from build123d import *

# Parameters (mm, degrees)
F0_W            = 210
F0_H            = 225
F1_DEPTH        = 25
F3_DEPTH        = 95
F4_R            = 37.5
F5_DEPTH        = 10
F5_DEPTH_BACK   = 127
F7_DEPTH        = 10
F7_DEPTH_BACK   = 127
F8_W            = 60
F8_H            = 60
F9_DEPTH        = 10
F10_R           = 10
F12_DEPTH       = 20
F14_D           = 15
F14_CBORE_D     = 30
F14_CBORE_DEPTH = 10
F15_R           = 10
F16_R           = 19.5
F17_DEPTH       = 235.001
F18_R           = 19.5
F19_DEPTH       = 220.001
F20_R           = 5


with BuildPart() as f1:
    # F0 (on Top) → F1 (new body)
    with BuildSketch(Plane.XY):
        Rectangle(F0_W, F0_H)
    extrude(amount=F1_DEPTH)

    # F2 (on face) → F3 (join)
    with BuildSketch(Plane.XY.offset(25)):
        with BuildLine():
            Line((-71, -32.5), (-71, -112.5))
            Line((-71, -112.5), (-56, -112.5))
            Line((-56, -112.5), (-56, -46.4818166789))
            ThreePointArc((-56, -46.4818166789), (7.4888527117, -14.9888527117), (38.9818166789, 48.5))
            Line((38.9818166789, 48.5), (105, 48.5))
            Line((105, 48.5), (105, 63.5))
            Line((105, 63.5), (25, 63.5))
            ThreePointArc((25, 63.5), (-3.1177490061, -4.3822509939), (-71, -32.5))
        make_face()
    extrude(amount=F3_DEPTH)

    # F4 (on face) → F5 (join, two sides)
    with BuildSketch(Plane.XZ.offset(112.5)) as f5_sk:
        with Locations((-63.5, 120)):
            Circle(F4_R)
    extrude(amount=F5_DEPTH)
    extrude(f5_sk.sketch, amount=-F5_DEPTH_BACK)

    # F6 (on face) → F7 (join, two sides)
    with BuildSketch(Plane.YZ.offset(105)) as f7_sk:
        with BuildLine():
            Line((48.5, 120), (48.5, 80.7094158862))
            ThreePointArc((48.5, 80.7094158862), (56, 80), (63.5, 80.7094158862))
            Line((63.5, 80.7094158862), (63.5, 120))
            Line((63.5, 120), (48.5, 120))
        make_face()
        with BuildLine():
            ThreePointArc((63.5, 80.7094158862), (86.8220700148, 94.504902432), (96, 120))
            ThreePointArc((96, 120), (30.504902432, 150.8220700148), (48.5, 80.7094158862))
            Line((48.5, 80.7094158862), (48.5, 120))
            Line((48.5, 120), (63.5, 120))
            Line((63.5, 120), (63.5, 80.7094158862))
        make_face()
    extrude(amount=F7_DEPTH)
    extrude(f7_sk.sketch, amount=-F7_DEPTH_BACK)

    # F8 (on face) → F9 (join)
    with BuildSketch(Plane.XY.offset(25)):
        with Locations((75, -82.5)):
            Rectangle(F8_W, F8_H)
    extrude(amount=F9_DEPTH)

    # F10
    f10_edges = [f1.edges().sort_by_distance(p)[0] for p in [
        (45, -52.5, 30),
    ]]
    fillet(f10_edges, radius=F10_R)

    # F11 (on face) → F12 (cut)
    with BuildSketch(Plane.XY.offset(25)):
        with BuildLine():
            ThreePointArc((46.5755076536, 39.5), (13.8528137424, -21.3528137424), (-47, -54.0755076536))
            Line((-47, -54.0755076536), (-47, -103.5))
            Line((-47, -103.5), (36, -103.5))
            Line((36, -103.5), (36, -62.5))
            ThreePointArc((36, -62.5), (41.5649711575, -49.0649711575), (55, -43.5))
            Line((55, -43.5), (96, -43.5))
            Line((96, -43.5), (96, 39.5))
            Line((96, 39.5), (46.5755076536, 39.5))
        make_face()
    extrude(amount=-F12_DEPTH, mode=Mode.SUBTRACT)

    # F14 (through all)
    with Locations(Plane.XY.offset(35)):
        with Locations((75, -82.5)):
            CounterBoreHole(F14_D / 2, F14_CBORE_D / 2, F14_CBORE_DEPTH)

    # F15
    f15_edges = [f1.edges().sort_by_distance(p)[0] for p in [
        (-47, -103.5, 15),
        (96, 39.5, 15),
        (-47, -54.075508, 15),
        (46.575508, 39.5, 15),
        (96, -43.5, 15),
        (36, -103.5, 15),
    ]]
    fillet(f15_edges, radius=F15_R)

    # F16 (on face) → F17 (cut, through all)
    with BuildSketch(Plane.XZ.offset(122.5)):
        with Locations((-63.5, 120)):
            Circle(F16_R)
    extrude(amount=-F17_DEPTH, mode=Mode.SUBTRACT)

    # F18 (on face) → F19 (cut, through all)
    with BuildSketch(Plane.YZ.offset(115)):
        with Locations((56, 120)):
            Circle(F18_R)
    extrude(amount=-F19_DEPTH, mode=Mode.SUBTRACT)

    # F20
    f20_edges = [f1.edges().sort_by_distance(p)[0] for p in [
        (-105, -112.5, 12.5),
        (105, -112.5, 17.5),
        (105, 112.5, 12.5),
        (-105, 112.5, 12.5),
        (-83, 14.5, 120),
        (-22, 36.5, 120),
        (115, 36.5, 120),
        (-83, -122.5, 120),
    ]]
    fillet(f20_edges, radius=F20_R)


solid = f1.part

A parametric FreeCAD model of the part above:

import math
import FreeCAD as App
import Part
import Sketcher
Q = App.Units.Quantity


def edges_at(feature, points):
    """Names of the edges that pass closest to the given points."""
    edges = feature.Shape.Edges
    near = lambda p: min(range(len(edges)), key=lambda i: edges[i].distToShape(Part.Vertex(*p))[0])
    return sorted({f"Edge{near(p) + 1}" for p in points})

doc = App.newDocument("Part")
body = doc.addObject("PartDesign::Body", "Body")

sketch1 = body.newObject("Sketcher::SketchObject", "Sketch")
sketch1.AttachmentSupport = (doc.getObject("XY_Plane"), [""])
sketch1.MapMode = "FlatFace"
sketch1.addGeometry(Part.LineSegment(App.Vector(-105, 112, 0), App.Vector(-105, -112, 0)), False)
sketch1.addGeometry(Part.LineSegment(App.Vector(-105, -112, 0), App.Vector(105, -112, 0)), False)
sketch1.addGeometry(Part.LineSegment(App.Vector(105, -112, 0), App.Vector(105, 112, 0)), False)
sketch1.addGeometry(Part.LineSegment(App.Vector(105, 112, 0), App.Vector(-105, 112, 0)), False)
sketch1.addConstraint(Sketcher.Constraint("Coincident", 0, 2, 1, 1))
sketch1.addConstraint(Sketcher.Constraint("Coincident", 1, 2, 2, 1))
sketch1.addConstraint(Sketcher.Constraint("Coincident", 2, 2, 3, 1))
sketch1.addConstraint(Sketcher.Constraint("Coincident", 3, 2, 0, 1))
sketch1.addConstraint(Sketcher.Constraint("Vertical", 0))
sketch1.addConstraint(Sketcher.Constraint("Horizontal", 1))
sketch1.addConstraint(Sketcher.Constraint("Vertical", 2))
sketch1.addConstraint(Sketcher.Constraint("Horizontal", 3))
sketch1.addConstraint(Sketcher.Constraint("Symmetric", 0, 2, 2, 2, -1, 1))
sketch1.addConstraint(Sketcher.Constraint("DistanceX", 1, 1, 1, 2, Q("210 mm")))
sketch1.addConstraint(Sketcher.Constraint("DistanceY", 0, 2, 0, 1, Q("225 mm")))
pad1 = body.newObject("PartDesign::Pad", "Pad")
pad1.Profile = sketch1
pad1.Length = 25

sketch2 = body.newObject("Sketcher::SketchObject", "Sketch001")
sketch2.AttachmentSupport = (doc.getObject("XY_Plane"), [""])
sketch2.MapMode = "FlatFace"
sketch2.AttachmentOffset = App.Placement(App.Vector(0, 0, 25), App.Rotation())
sketch2.addGeometry(Part.LineSegment(App.Vector(-71, -32, 0), App.Vector(-71, -112, 0)), False)
sketch2.addGeometry(Part.LineSegment(App.Vector(-71, -112, 0), App.Vector(-56, -112, 0)), False)
sketch2.addGeometry(Part.LineSegment(App.Vector(-56, -112, 0), App.Vector(-56, -46, 0)), False)
sketch2.addGeometry(Part.ArcOfCircle(Part.Circle(App.Vector(-71, 64, 0), App.Vector(0, 0, 1), 111), math.radians(-82), math.radians(-8)), False)
sketch2.addGeometry(Part.LineSegment(App.Vector(39, 48, 0), App.Vector(105, 48, 0)), False)
sketch2.addGeometry(Part.LineSegment(App.Vector(105, 48, 0), App.Vector(105, 64, 0)), False)
sketch2.addGeometry(Part.LineSegment(App.Vector(105, 64, 0), App.Vector(25, 64, 0)), False)
sketch2.addGeometry(Part.ArcOfCircle(Part.Circle(App.Vector(-71, 64, 0), App.Vector(0, 0, 1), 96), math.radians(-90), math.radians(0)), False)
sketch2.addConstraint(Sketcher.Constraint("Coincident", 0, 2, 1, 1))
sketch2.addConstraint(Sketcher.Constraint("Coincident", 1, 2, 2, 1))
sketch2.addConstraint(Sketcher.Constraint("Coincident", 2, 2, 3, 1))
sketch2.addConstraint(Sketcher.Constraint("Coincident", 3, 2, 4, 1))
sketch2.addConstraint(Sketcher.Constraint("Coincident", 4, 2, 5, 1))
sketch2.addConstraint(Sketcher.Constraint("Coincident", 5, 2, 6, 1))
sketch2.addConstraint(Sketcher.Constraint("Coincident", 6, 2, 7, 2))
sketch2.addConstraint(Sketcher.Constraint("Coincident", 7, 1, 0, 1))
sketch2.addConstraint(Sketcher.Constraint("Vertical", 0))
sketch2.addConstraint(Sketcher.Constraint("Horizontal", 1))
sketch2.addConstraint(Sketcher.Constraint("Vertical", 2))
sketch2.addConstraint(Sketcher.Constraint("Horizontal", 4))
sketch2.addConstraint(Sketcher.Constraint("Vertical", 5))
sketch2.addConstraint(Sketcher.Constraint("Horizontal", 6))
sketch2.addConstraint(Sketcher.Constraint("Coincident", 7, 3, 3, 3))
sketch2.addConstraint(Sketcher.Constraint("Horizontal", 7, 3, 5, 2))
sketch2.addConstraint(Sketcher.Constraint("Vertical", 7, 3, 0, 2))
sketch2.addConstraint(Sketcher.Constraint("Equal", 6, 0))
sketch2.addConstraint(Sketcher.Constraint("Equal", 4, 2))
sketch2.addConstraint(Sketcher.Constraint("Radius", 3, Q("111 mm")))
sketch2.addConstraint(Sketcher.Constraint("Radius", 7, Q("96 mm")))
sketch2.addConstraint(Sketcher.Constraint("DistanceX", 1, 1, 1, 2, Q("15 mm")))
sketch2.addConstraint(Sketcher.Constraint("DistanceX", 6, 2, 6, 1, Q("80 mm")))
sketch2.addConstraint(Sketcher.Constraint("DistanceX", 3, 3, -1, 1, Q("71 mm")))
sketch2.addConstraint(Sketcher.Constraint("DistanceY", -1, 1, 3, 3, Q("63.5 mm")))
pad2 = body.newObject("PartDesign::Pad", "Pad001")
pad2.Profile = sketch2
pad2.Length = 95

sketch3 = body.newObject("Sketcher::SketchObject", "Sketch002")
sketch3.AttachmentSupport = (doc.getObject("XZ_Plane"), [""])
sketch3.MapMode = "FlatFace"
sketch3.AttachmentOffset = App.Placement(App.Vector(0, 0, 112.5), App.Rotation())
sketch3.addGeometry(Part.Circle(App.Vector(-64, 120, 0), App.Vector(0, 0, 1), 38), False)
sketch3.addConstraint(Sketcher.Constraint("Diameter", 0, Q("75 mm")))
sketch3.addConstraint(Sketcher.Constraint("DistanceY", -1, 1, 0, 3, Q("120 mm")))
sketch3.addConstraint(Sketcher.Constraint("DistanceX", 0, 3, -1, 1, Q("63.5 mm")))
pad3 = body.newObject("PartDesign::Pad", "Pad002")
pad3.Profile = sketch3
pad3.Type = "TwoLengths"
pad3.Length = 10
pad3.Length2 = 127

sketch4 = body.newObject("Sketcher::SketchObject", "Sketch003")
sketch4.AttachmentSupport = (doc.getObject("YZ_Plane"), [""])
sketch4.MapMode = "FlatFace"
sketch4.AttachmentOffset = App.Placement(App.Vector(0, 0, 105), App.Rotation())
sketch4.addGeometry(Part.ArcOfCircle(Part.Circle(App.Vector(56, 120, 0), App.Vector(0, 0, 1), 40), math.radians(-101), math.radians(-79)), False)
sketch4.addGeometry(Part.ArcOfCircle(Part.Circle(App.Vector(56, 120, 0), App.Vector(0, 0, 1), 40), math.radians(-79), math.radians(0)), False)
sketch4.addGeometry(Part.ArcOfCircle(Part.Circle(App.Vector(56, 120, 0), App.Vector(0, 0, 1), 40), math.radians(0), math.radians(259)), False)
sketch4.addConstraint(Sketcher.Constraint("Tangent", 0, 2, 1, 1))
sketch4.addConstraint(Sketcher.Constraint("Tangent", 1, 2, 2, 1))
sketch4.addConstraint(Sketcher.Constraint("Tangent", 2, 2, 0, 1))
sketch4.addConstraint(Sketcher.Constraint("Horizontal", 2, 3, 1, 2))
sketch4.addConstraint(Sketcher.Constraint("Horizontal", 0, 2, 2, 2))
sketch4.addConstraint(Sketcher.Constraint("Radius", 0, Q("40 mm")))
sketch4.addConstraint(Sketcher.Constraint("DistanceX", -1, 1, 0, 3, Q("56 mm")))
sketch4.addConstraint(Sketcher.Constraint("DistanceY", -1, 1, 0, 3, Q("120 mm")))
sketch4.addConstraint(Sketcher.Constraint("DistanceX", 2, 2, 0, 2, Q("15 mm")))
pad4 = body.newObject("PartDesign::Pad", "Pad003")
pad4.Profile = sketch4
pad4.Type = "TwoLengths"
pad4.Length = 10
pad4.Length2 = 127

sketch5 = body.newObject("Sketcher::SketchObject", "Sketch004")
sketch5.AttachmentSupport = (doc.getObject("XY_Plane"), [""])
sketch5.MapMode = "FlatFace"
sketch5.AttachmentOffset = App.Placement(App.Vector(0, 0, 25), App.Rotation())
sketch5.addGeometry(Part.LineSegment(App.Vector(45, -52, 0), App.Vector(45, -112, 0)), False)
sketch5.addGeometry(Part.LineSegment(App.Vector(45, -112, 0), App.Vector(105, -112, 0)), False)
sketch5.addGeometry(Part.LineSegment(App.Vector(105, -112, 0), App.Vector(105, -52, 0)), False)
sketch5.addGeometry(Part.LineSegment(App.Vector(105, -52, 0), App.Vector(45, -52, 0)), False)
sketch5.addConstraint(Sketcher.Constraint("Coincident", 0, 2, 1, 1))
sketch5.addConstraint(Sketcher.Constraint("Coincident", 1, 2, 2, 1))
sketch5.addConstraint(Sketcher.Constraint("Coincident", 2, 2, 3, 1))
sketch5.addConstraint(Sketcher.Constraint("Coincident", 3, 2, 0, 1))
sketch5.addConstraint(Sketcher.Constraint("Vertical", 0))
sketch5.addConstraint(Sketcher.Constraint("Horizontal", 1))
sketch5.addConstraint(Sketcher.Constraint("Vertical", 2))
sketch5.addConstraint(Sketcher.Constraint("Horizontal", 3))
sketch5.addConstraint(Sketcher.Constraint("Equal", 3, 0))
sketch5.addConstraint(Sketcher.Constraint("DistanceX", 1, 1, 1, 2, Q("60 mm")))
sketch5.addConstraint(Sketcher.Constraint("DistanceX", -1, 1, 0, 2, Q("45 mm")))
sketch5.addConstraint(Sketcher.Constraint("DistanceY", 0, 2, -1, 1, Q("112.5 mm")))
pad5 = body.newObject("PartDesign::Pad", "Pad004")
pad5.Profile = sketch5
pad5.Length = 10
doc.recompute()

fillet = body.newObject("PartDesign::Fillet", "Fillet")
fillet.Base = (pad5, edges_at(pad5, [(45, -52.5, 30)]))
fillet.Radius = 10

sketch6 = body.newObject("Sketcher::SketchObject", "Sketch005")
sketch6.AttachmentSupport = (doc.getObject("XY_Plane"), [""])
sketch6.MapMode = "FlatFace"
sketch6.AttachmentOffset = App.Placement(App.Vector(0, 0, 25), App.Rotation())
sketch6.addGeometry(Part.ArcOfCircle(Part.Circle(App.Vector(-71, 64, 0), App.Vector(0, 0, 1), 120), math.radians(-78), math.radians(-12)), False)
sketch6.addGeometry(Part.LineSegment(App.Vector(-47, -54, 0), App.Vector(-47, -104, 0)), False)
sketch6.addGeometry(Part.LineSegment(App.Vector(-47, -104, 0), App.Vector(36, -104, 0)), False)
sketch6.addGeometry(Part.LineSegment(App.Vector(36, -104, 0), App.Vector(36, -62, 0)), False)
sketch6.addGeometry(Part.ArcOfCircle(Part.Circle(App.Vector(55, -62, 0), App.Vector(0, 0, 1), 19), math.radians(90), math.radians(180)), False)
sketch6.addGeometry(Part.LineSegment(App.Vector(55, -44, 0), App.Vector(96, -44, 0)), False)
sketch6.addGeometry(Part.LineSegment(App.Vector(96, -44, 0), App.Vector(96, 40, 0)), False)
sketch6.addGeometry(Part.LineSegment(App.Vector(96, 40, 0), App.Vector(47, 40, 0)), False)
sketch6.addConstraint(Sketcher.Constraint("Coincident", 0, 1, 1, 1))
sketch6.addConstraint(Sketcher.Constraint("Coincident", 1, 2, 2, 1))
sketch6.addConstraint(Sketcher.Constraint("Coincident", 2, 2, 3, 1))
sketch6.addConstraint(Sketcher.Constraint("Tangent", 3, 2, 4, 2))
sketch6.addConstraint(Sketcher.Constraint("Tangent", 4, 1, 5, 1))
sketch6.addConstraint(Sketcher.Constraint("Coincident", 5, 2, 6, 1))
sketch6.addConstraint(Sketcher.Constraint("Coincident", 6, 2, 7, 1))
sketch6.addConstraint(Sketcher.Constraint("Coincident", 7, 2, 0, 2))
sketch6.addConstraint(Sketcher.Constraint("Vertical", 1))
sketch6.addConstraint(Sketcher.Constraint("Horizontal", 2))
sketch6.addConstraint(Sketcher.Constraint("Vertical", 3))
sketch6.addConstraint(Sketcher.Constraint("Horizontal", 5))
sketch6.addConstraint(Sketcher.Constraint("Vertical", 6))
sketch6.addConstraint(Sketcher.Constraint("Horizontal", 7))
sketch6.addConstraint(Sketcher.Constraint("Equal", 7, 1))
sketch6.addConstraint(Sketcher.Constraint("Equal", 5, 3))
sketch6.addConstraint(Sketcher.Constraint("Equal", 2, 6))
sketch6.addConstraint(Sketcher.Constraint("Radius", 0, Q("120 mm")))
sketch6.addConstraint(Sketcher.Constraint("Radius", 4, Q("19 mm")))
sketch6.addConstraint(Sketcher.Constraint("DistanceX", 2, 1, 2, 2, Q("83 mm")))
sketch6.addConstraint(Sketcher.Constraint("DistanceX", 5, 1, 5, 2, Q("41 mm")))
sketch6.addConstraint(Sketcher.Constraint("DistanceX", 0, 3, -1, 1, Q("71 mm")))
sketch6.addConstraint(Sketcher.Constraint("DistanceX", -1, 1, 4, 3, Q("55 mm")))
sketch6.addConstraint(Sketcher.Constraint("DistanceY", -1, 1, 0, 3, Q("63.5 mm")))
pocket1 = body.newObject("PartDesign::Pocket", "Pocket")
pocket1.Profile = sketch6
pocket1.Length = 20

sketch7 = body.newObject("Sketcher::SketchObject", "Sketch006")
sketch7.AttachmentSupport = (doc.getObject("XY_Plane"), [""])
sketch7.MapMode = "FlatFace"
sketch7.AttachmentOffset = App.Placement(App.Vector(0, 0, 35), App.Rotation())
sketch7.addGeometry(Part.Circle(App.Vector(75, -82, 0), App.Vector(0, 0, 1), 8), False)
sketch7.addConstraint(Sketcher.Constraint("Diameter", 0, Q("15 mm")))
sketch7.addConstraint(Sketcher.Constraint("DistanceX", -1, 1, 0, 3, Q("75 mm")))
sketch7.addConstraint(Sketcher.Constraint("DistanceY", 0, 3, -1, 1, Q("82.5 mm")))
doc.recompute()
hole = body.newObject("PartDesign::Hole", "Hole")
hole.Profile = sketch7
hole.ThreadType = "None"
hole.Diameter = 15
hole.DepthType = "ThroughAll"
hole.HoleCutType = "Counterbore"
hole.HoleCutDiameter = 30
hole.HoleCutDepth = 10
doc.recompute()

fillet2 = body.newObject("PartDesign::Fillet", "Fillet001")
fillet2.Base = (hole, edges_at(hole, [
    (-47, -103.5, 15),
    (96, 39.5, 15),
    (-47, -54.076, 15),
    (46.576, 39.5, 15),
    (96, -43.5, 15),
    (36, -103.5, 15),
]))
fillet2.Radius = 10

sketch8 = body.newObject("Sketcher::SketchObject", "Sketch007")
sketch8.AttachmentSupport = (doc.getObject("XZ_Plane"), [""])
sketch8.MapMode = "FlatFace"
sketch8.AttachmentOffset = App.Placement(App.Vector(0, 0, 122.5), App.Rotation())
sketch8.addGeometry(Part.Circle(App.Vector(-64, 120, 0), App.Vector(0, 0, 1), 20), False)
sketch8.addConstraint(Sketcher.Constraint("Diameter", 0, Q("39 mm")))
sketch8.addConstraint(Sketcher.Constraint("DistanceY", -1, 1, 0, 3, Q("120 mm")))
sketch8.addConstraint(Sketcher.Constraint("DistanceX", 0, 3, -1, 1, Q("63.5 mm")))
pocket2 = body.newObject("PartDesign::Pocket", "Pocket001")
pocket2.Profile = sketch8
pocket2.Type = "ThroughAll"

sketch9 = body.newObject("Sketcher::SketchObject", "Sketch008")
sketch9.AttachmentSupport = (doc.getObject("YZ_Plane"), [""])
sketch9.MapMode = "FlatFace"
sketch9.AttachmentOffset = App.Placement(App.Vector(0, 0, 115), App.Rotation())
sketch9.addGeometry(Part.Circle(App.Vector(56, 120, 0), App.Vector(0, 0, 1), 20), False)
sketch9.addConstraint(Sketcher.Constraint("Diameter", 0, Q("39 mm")))
sketch9.addConstraint(Sketcher.Constraint("DistanceX", -1, 1, 0, 3, Q("56 mm")))
sketch9.addConstraint(Sketcher.Constraint("DistanceY", -1, 1, 0, 3, Q("120 mm")))
pocket3 = body.newObject("PartDesign::Pocket", "Pocket002")
pocket3.Profile = sketch9
pocket3.Type = "ThroughAll"
doc.recompute()

fillet3 = body.newObject("PartDesign::Fillet", "Fillet002")
fillet3.Base = (pocket3, edges_at(pocket3, [
    (-105, -112.5, 12.5),
    (105, -112.5, 17.5),
    (105, 112.5, 12.5),
    (-105, 112.5, 12.5),
    (-83, 14.5, 120),
    (-22, 36.5, 120),
    (115, 36.5, 120),
    (-83, -122.5, 120),
]))
fillet3.Radius = 5

doc.recompute()
